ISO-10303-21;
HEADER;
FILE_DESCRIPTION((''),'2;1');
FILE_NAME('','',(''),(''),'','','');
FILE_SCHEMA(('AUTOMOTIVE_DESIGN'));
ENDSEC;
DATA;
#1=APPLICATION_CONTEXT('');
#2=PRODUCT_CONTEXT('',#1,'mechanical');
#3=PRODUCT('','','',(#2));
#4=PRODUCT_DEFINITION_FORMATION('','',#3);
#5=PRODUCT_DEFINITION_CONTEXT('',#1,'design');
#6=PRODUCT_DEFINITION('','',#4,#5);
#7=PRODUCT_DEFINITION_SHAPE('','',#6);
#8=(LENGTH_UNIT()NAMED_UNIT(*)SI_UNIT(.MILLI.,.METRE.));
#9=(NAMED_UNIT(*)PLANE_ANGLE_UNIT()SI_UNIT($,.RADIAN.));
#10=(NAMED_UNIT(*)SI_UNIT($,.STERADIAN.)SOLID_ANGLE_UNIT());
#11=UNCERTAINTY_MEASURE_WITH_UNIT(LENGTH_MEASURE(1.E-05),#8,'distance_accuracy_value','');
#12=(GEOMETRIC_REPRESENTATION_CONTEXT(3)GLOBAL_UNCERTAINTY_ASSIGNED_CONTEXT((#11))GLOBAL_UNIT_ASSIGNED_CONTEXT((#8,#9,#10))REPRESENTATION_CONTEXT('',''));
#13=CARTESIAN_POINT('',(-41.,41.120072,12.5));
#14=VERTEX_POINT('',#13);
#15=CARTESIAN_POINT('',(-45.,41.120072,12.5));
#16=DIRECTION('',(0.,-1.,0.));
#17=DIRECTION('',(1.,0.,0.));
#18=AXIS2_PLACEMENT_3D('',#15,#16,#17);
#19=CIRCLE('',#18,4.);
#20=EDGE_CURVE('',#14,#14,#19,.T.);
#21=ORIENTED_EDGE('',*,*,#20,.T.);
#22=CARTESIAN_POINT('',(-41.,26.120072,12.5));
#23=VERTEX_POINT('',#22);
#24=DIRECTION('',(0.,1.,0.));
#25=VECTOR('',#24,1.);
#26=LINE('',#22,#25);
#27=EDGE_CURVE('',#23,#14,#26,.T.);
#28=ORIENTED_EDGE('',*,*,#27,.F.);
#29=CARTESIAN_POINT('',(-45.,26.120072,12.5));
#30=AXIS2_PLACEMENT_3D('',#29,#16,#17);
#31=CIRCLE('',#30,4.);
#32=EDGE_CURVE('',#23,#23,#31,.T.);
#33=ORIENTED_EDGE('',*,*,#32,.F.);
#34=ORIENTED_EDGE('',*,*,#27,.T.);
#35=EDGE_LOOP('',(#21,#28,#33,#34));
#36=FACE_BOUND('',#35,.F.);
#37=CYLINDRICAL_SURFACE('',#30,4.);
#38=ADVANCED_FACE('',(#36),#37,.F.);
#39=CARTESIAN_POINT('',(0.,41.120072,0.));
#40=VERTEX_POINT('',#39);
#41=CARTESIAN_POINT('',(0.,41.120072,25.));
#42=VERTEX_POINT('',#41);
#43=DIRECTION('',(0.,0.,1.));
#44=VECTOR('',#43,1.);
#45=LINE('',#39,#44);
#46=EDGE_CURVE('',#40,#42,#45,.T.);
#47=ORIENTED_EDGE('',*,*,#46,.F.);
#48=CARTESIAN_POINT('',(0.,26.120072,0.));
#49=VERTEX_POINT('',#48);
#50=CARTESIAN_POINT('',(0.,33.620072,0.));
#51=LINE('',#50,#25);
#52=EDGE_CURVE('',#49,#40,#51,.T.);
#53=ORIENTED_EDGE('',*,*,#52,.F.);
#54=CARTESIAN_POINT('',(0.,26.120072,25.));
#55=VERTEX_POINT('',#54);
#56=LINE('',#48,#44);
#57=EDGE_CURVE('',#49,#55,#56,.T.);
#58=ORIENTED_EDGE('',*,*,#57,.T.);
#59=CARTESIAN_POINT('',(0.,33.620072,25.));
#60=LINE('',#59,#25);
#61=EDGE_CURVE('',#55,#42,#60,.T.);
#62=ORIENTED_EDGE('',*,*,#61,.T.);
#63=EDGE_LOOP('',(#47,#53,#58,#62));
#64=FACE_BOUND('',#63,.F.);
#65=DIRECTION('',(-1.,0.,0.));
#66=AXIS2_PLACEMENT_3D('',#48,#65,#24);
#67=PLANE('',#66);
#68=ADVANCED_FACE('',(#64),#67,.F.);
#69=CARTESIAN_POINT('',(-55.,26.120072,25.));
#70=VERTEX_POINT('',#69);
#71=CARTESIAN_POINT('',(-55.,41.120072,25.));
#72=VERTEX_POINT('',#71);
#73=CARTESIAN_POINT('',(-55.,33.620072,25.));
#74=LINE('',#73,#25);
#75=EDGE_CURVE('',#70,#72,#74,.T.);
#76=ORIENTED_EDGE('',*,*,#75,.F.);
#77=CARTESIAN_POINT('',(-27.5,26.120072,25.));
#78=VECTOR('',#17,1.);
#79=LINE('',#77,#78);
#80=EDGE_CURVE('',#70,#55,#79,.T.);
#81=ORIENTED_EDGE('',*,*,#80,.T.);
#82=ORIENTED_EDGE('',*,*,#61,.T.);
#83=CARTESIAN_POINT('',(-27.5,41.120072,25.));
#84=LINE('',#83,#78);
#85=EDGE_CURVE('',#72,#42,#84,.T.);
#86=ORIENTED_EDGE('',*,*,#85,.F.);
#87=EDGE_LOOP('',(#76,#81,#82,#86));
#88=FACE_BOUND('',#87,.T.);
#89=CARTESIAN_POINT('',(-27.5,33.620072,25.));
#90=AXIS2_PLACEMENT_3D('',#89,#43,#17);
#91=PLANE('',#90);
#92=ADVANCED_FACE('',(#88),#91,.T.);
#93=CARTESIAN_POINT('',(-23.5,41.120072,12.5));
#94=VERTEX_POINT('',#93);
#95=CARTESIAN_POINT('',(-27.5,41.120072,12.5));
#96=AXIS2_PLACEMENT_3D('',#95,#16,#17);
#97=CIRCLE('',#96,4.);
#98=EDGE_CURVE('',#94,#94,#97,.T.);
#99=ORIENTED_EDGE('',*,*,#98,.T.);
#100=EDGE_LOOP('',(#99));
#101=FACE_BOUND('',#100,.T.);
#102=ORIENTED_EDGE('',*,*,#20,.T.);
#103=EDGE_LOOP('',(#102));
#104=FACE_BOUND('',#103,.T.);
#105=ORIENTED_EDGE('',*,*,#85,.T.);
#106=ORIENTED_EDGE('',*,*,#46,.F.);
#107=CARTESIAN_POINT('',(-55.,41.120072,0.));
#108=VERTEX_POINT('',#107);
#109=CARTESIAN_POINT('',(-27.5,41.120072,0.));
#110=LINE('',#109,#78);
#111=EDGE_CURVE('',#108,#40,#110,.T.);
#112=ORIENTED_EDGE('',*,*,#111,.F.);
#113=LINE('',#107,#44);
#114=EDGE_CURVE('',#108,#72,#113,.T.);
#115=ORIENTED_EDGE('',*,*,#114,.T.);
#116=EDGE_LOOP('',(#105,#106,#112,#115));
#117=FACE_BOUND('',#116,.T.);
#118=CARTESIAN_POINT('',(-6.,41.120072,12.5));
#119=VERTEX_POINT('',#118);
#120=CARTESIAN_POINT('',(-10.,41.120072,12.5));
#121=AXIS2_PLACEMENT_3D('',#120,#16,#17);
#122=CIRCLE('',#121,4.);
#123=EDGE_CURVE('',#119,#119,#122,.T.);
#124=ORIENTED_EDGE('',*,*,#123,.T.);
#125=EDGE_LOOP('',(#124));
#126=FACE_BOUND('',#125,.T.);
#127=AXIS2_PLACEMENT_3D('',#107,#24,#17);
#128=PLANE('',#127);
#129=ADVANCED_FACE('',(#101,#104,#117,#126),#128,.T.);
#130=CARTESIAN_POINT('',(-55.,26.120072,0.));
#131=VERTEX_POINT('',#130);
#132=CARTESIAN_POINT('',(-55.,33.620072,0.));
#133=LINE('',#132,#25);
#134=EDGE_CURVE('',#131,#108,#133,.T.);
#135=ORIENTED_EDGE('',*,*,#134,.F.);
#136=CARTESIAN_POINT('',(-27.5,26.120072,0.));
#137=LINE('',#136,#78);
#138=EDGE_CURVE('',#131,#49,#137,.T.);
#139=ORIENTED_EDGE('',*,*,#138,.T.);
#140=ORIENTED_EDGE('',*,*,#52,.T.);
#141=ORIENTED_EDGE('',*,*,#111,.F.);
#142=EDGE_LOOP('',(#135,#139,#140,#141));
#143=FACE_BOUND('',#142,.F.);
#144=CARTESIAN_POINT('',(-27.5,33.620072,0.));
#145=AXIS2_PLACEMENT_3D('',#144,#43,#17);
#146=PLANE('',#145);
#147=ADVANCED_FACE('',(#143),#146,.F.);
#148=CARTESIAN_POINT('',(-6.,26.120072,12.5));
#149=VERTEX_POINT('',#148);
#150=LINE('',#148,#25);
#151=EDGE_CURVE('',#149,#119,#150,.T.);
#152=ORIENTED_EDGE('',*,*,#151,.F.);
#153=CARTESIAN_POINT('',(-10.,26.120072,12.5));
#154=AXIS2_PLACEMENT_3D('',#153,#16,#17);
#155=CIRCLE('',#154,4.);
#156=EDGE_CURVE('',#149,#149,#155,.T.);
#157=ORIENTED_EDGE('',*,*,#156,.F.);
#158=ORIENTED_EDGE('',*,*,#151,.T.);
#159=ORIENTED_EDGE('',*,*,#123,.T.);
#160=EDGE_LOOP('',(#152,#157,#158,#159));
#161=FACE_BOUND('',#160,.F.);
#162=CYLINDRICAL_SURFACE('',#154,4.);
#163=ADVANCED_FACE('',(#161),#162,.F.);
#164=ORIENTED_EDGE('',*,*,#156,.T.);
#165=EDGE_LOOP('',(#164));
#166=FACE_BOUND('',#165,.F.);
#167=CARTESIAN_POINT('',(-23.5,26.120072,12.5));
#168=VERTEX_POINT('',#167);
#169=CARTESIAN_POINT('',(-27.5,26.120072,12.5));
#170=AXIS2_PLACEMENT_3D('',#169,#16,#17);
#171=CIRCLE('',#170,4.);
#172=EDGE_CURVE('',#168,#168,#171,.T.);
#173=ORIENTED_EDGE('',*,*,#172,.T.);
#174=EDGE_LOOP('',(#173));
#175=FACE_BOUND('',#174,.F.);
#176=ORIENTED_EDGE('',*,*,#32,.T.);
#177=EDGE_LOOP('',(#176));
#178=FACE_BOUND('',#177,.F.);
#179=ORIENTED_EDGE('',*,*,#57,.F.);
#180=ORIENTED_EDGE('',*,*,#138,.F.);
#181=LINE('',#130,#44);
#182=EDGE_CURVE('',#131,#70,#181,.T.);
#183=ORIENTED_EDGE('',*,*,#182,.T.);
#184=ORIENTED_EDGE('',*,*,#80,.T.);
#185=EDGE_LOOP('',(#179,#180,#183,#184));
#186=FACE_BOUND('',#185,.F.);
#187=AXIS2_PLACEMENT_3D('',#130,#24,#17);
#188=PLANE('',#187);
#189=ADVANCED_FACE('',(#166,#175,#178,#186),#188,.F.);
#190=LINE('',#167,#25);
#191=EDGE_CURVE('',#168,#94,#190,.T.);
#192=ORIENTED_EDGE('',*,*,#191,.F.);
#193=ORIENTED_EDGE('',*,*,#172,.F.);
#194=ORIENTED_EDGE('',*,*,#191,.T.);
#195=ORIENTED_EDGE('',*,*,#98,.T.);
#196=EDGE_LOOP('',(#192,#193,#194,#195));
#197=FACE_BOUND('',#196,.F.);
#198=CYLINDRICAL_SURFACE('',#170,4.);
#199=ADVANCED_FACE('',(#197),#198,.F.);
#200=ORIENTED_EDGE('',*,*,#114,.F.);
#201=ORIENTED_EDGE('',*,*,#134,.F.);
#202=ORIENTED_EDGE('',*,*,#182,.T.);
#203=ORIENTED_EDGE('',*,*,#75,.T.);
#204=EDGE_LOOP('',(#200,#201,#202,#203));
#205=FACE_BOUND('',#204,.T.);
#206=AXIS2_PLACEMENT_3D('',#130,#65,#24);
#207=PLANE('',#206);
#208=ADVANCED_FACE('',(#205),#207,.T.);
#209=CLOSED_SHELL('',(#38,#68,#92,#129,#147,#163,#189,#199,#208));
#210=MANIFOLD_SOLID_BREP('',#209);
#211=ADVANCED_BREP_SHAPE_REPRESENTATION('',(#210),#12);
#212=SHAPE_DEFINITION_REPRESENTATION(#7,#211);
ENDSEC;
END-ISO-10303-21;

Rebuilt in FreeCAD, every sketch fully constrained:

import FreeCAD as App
import Part
import Sketcher

V = App.Vector

doc = App.newDocument("Part")
body = doc.addObject("PartDesign::Body", "Body")

sketch1 = body.newObject("Sketcher::SketchObject", "Sketch")
sketch1.AttachmentSupport = (doc.getObject("XY_Plane"), [""])
sketch1.MapMode = "FlatFace"
sketch1.addGeometry(Part.LineSegment(V(-55, 41, 0), V(-55, 26, 0)), False)
sketch1.addGeometry(Part.LineSegment(V(-55, 26, 0), V(0, 26, 0)), False)
sketch1.addGeometry(Part.LineSegment(V(0, 26, 0), V(0, 41, 0)), False)
sketch1.addGeometry(Part.LineSegment(V(0, 41, 0), V(-55, 41, 0)), False)
sketch1.addConstraint(Sketcher.Constraint("Coincident", 0, 2, 1, 1))
sketch1.addConstraint(Sketcher.Constraint("Coincident", 1, 2, 2, 1))
sketch1.addConstraint(Sketcher.Constraint("Coincident", 2, 2, 3, 1))
sketch1.addConstraint(Sketcher.Constraint("Coincident", 3, 2, 0, 1))
sketch1.addConstraint(Sketcher.Constraint("Vertical", 0))
sketch1.addConstraint(Sketcher.Constraint("Horizontal", 1))
sketch1.addConstraint(Sketcher.Constraint("Vertical", 2))
sketch1.addConstraint(Sketcher.Constraint("Horizontal", 3))
sketch1.addConstraint(Sketcher.Constraint("PointOnObject", 1, 2, -2))
sketch1.addConstraint(Sketcher.Constraint("DistanceX", 1, 1, 1, 2, 55.0))
sketch1.addConstraint(Sketcher.Constraint("DistanceY", 0, 2, 0, 1, 15.0))
sketch1.addConstraint(Sketcher.Constraint("DistanceY", -1, 1, 0, 2, 26.120072))
pad1 = body.newObject("PartDesign::Pad", "Pad")
pad1.Profile = sketch1
pad1.Length = 25

sketch2 = body.newObject("Sketcher::SketchObject", "Sketch001")
sketch2.AttachmentSupport = (doc.getObject("XZ_Plane"), [""])
sketch2.MapMode = "FlatFace"
sketch2.AttachmentOffset = App.Placement(V(0, 0, -26.120072), App.Rotation())
sketch2.addGeometry(Part.Circle(V(-10, 12.5, 0), V(0, 0, 1), 4), False)
sketch2.addGeometry(Part.Circle(V(-45, 12.5, 0), V(0, 0, 1), 4), False)
sketch2.addGeometry(Part.Circle(V(-27.5, 12.5, 0), V(0, 0, 1), 4), False)
sketch2.addConstraint(Sketcher.Constraint("Equal", 0, 1))
sketch2.addConstraint(Sketcher.Constraint("Equal", 1, 2))
sketch2.addConstraint(Sketcher.Constraint("Horizontal", 0, 3, 1, 3))
sketch2.addConstraint(Sketcher.Constraint("Horizontal", 1, 3, 2, 3))
sketch2.addConstraint(Sketcher.Constraint("Diameter", 0, 8.0))
sketch2.addConstraint(Sketcher.Constraint("DistanceX", 0, 3, -1, 1, 10.0))
sketch2.addConstraint(Sketcher.Constraint("DistanceX", 1, 3, -1, 1, 45.0))
sketch2.addConstraint(Sketcher.Constraint("DistanceY", -1, 1, 0, 3, 12.5))
sketch2.addConstraint(Sketcher.Constraint("DistanceX", 2, 3, -1, 1, 27.5))
pocket1 = body.newObject("PartDesign::Pocket", "Pocket")
pocket1.Profile = sketch2
pocket1.Length = 25

doc.recompute()
